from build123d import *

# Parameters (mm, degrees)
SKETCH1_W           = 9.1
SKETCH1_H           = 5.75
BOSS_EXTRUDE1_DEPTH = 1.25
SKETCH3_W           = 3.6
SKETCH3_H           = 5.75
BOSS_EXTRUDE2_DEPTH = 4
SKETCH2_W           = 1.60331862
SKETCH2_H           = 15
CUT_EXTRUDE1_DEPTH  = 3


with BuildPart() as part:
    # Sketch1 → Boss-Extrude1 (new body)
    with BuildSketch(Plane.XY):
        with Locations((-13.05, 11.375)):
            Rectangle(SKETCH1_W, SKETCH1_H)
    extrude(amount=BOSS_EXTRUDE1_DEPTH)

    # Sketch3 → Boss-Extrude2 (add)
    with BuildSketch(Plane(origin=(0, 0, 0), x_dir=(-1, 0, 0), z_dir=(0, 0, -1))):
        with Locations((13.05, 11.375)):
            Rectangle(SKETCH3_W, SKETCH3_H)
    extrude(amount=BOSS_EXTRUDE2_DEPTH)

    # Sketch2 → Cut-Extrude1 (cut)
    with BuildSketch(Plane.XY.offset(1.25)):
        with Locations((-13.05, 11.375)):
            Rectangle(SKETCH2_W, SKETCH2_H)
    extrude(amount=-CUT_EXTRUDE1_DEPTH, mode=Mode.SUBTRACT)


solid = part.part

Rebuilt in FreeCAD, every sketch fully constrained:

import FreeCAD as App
import Part
import Sketcher

V = App.Vector
Q = App.Units.Quantity


def add_polygon(sketch, points):
    """Adds a closed chain of lines whose ends are joined by coincident constraints."""
    first, n = sketch.GeometryCount, len(points)
    for a, b in zip(points, points[1:] + points[:1]):
        sketch.addGeometry(Part.LineSegment(App.Vector(*a, 0), App.Vector(*b, 0)), False)
    for i in range(n):
        sketch.addConstraint(Sketcher.Constraint("Coincident", first + i, 2, first + (i + 1) % n, 1))

doc = App.newDocument("Part")
params = doc.addObject("Spreadsheet::Sheet", "Params")
for row, (alias, value) in enumerate([
    ("sketch1_width", "9.1 mm"),
    ("sketch1_height", "5.75 mm"),
    ("pad1_length", "1.25 mm"),
    ("sketch2_width", "3.6 mm"),
    ("sketch2_height", "5.75 mm"),
    ("pad2_length", "4 mm"),
    ("sketch3_height", "15 mm"),
    ("pocket1_length", "3 mm"),
], start=1):
    params.set(f"A{row}", alias)
    params.set(f"B{row}", "=" + value)
    params.setAlias(f"B{row}", alias)

body = doc.addObject("PartDesign::Body", "Body")

# Sketch on XY plane
sketch1 = body.newObject("Sketcher::SketchObject", "Sketch")
sketch1.AttachmentSupport = (doc.getObject("XY_Plane"), [""])
sketch1.MapMode = "FlatFace"
add_polygon(sketch1, [(-17.6, 14.25), (-17.6, 8.5), (-8.5, 8.5), (-8.5, 14.25)])  # lines 0-3
sketch1.addConstraint([
    Sketcher.Constraint("Vertical", 0),
    Sketcher.Constraint("Horizontal", 1),
    Sketcher.Constraint("Vertical", 2),
    Sketcher.Constraint("Horizontal", 3),
    Sketcher.Constraint("DistanceX", 1, 1, 1, 2, Q("9.1 mm")),
    Sketcher.Constraint("DistanceY", 0, 2, 0, 1, Q("5.75 mm")),
    Sketcher.Constraint("DistanceX", 0, 2, -1, 1, Q("17.6 mm")),
    Sketcher.Constraint("DistanceY", -1, 1, 0, 2, Q("8.5 mm")),
])
sketch1.setExpression("Constraints[8]", "Params.sketch1_width")
sketch1.setExpression("Constraints[9]", "Params.sketch1_height")
pad1 = body.newObject("PartDesign::Pad", "Pad")
pad1.Profile = sketch1
pad1.setExpression("Length", "Params.pad1_length")

# Sketch on XY plane
sketch2 = body.newObject("Sketcher::SketchObject", "Sketch001")
sketch2.AttachmentSupport = (doc.getObject("XY_Plane"), [""])
sketch2.MapMode = "FlatFace"
add_polygon(sketch2, [(-11.25, 14.25), (-11.25, 8.5), (-14.85, 8.5), (-14.85, 14.25)])  # lines 0-3
sketch2.addConstraint([
    Sketcher.Constraint("Vertical", 0),
    Sketcher.Constraint("Horizontal", 1),
    Sketcher.Constraint("Vertical", 2),
    Sketcher.Constraint("Horizontal", 3),
    Sketcher.Constraint("DistanceX", 1, 2, 1, 1, Q("3.6 mm")),
    Sketcher.Constraint("DistanceY", 0, 2, 0, 1, Q("5.75 mm")),
    Sketcher.Constraint("DistanceY", -1, 1, 0, 2, Q("8.5 mm")),
    Sketcher.Constraint("DistanceX", 0, 2, -1, 1, Q("11.25 mm")),
])
sketch2.setExpression("Constraints[8]", "Params.sketch2_width")
sketch2.setExpression("Constraints[9]", "Params.sketch2_height")
pad2 = body.newObject("PartDesign::Pad", "Pad001")
pad2.Profile = sketch2
pad2.setExpression("Length", "Params.pad2_length")
pad2.Reversed = True

# Sketch on XY plane
sketch3 = body.newObject("Sketcher::SketchObject", "Sketch002")
sketch3.AttachmentSupport = (doc.getObject("XY_Plane"), [""])
sketch3.MapMode = "FlatFace"
sketch3.AttachmentOffset = App.Placement(V(0, 0, 1.25), App.Rotation())
add_polygon(sketch3, [(-13.851659, 18.875), (-13.851659, 3.875), (-12.248341, 3.875), (-12.248341, 18.875)])  # lines 0-3
sketch3.addConstraint([
    Sketcher.Constraint("Vertical", 0),
    Sketcher.Constraint("Horizontal", 1),
    Sketcher.Constraint("Vertical", 2),
    Sketcher.Constraint("Horizontal", 3),
    Sketcher.Constraint("DistanceY", 0, 2, 0, 1, Q("15 mm")),
    Sketcher.Constraint("DistanceY", -1, 1, 0, 2, Q("3.875 mm")),
    Sketcher.Constraint("DistanceX", 1, 1, 1, 2, Q("1.603319 mm")),
    Sketcher.Constraint("DistanceX", 0, 2, -1, 1, Q("13.851659 mm")),
])
sketch3.setExpression("Constraints[8]", "Params.sketch3_height")
pocket1 = body.newObject("PartDesign::Pocket", "Pocket")
pocket1.Profile = sketch3
pocket1.setExpression("Length", "Params.pocket1_length")

doc.recompute()
